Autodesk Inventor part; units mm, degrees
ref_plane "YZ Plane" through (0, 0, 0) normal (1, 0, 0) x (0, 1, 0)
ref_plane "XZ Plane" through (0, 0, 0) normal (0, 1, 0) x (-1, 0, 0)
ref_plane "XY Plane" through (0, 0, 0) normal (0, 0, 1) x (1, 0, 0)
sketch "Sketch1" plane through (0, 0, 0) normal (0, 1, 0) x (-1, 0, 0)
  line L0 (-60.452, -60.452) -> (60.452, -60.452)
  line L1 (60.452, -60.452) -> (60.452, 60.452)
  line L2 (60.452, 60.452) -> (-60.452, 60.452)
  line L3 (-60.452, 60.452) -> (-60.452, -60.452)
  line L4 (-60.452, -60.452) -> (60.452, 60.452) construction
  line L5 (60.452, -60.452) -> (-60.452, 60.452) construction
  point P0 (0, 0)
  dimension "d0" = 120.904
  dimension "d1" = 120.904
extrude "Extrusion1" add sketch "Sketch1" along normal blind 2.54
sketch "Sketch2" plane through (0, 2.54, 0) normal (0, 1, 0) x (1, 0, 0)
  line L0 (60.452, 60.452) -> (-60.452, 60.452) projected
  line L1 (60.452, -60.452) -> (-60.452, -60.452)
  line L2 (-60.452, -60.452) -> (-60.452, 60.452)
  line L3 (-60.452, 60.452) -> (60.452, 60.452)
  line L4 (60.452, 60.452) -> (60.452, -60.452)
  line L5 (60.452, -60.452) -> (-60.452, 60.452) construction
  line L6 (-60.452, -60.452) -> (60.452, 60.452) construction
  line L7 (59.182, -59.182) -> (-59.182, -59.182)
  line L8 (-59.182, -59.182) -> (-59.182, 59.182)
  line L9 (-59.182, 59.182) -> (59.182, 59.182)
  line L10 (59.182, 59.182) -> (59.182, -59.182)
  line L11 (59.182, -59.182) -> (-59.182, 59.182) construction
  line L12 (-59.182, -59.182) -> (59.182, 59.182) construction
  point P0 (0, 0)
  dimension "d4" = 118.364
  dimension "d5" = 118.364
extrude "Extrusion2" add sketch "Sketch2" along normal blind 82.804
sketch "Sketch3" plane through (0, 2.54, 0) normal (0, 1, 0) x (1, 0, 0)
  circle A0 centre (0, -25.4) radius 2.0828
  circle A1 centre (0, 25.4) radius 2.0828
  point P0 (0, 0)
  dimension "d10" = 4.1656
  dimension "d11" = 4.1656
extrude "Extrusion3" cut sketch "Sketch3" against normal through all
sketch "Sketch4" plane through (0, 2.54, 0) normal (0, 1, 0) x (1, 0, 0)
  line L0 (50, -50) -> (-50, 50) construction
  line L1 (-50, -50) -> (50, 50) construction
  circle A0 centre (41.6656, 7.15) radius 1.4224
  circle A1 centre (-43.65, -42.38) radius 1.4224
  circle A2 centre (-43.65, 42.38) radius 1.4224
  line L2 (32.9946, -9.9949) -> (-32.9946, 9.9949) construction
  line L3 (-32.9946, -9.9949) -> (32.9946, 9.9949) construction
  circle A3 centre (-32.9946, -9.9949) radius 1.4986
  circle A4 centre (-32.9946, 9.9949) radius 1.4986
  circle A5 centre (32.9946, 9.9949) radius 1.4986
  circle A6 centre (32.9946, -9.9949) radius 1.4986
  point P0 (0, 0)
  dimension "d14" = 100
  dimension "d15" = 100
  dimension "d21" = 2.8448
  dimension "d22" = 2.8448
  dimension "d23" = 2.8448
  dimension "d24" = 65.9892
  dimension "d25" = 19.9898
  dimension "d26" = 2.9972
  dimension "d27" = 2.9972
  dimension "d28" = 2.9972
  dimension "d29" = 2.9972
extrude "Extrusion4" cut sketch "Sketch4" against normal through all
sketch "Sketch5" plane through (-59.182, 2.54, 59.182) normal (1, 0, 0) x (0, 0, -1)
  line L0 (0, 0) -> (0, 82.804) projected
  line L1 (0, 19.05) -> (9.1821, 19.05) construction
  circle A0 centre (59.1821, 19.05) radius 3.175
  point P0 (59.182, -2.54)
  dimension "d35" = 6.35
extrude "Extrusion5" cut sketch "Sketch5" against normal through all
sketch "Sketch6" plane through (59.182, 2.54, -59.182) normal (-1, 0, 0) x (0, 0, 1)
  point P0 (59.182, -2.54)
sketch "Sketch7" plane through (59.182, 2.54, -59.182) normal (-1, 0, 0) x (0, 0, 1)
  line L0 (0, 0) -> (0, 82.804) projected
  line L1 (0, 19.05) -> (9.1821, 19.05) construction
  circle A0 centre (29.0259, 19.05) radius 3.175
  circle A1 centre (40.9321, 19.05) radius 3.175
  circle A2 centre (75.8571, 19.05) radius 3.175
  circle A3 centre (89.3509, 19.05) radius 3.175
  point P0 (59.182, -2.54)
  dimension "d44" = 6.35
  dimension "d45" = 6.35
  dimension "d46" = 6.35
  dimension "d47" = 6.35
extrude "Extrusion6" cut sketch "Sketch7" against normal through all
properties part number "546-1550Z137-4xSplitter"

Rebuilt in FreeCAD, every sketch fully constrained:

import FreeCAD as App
import Part
import Sketcher
from FreeCAD import Vector
Q = App.Units.Quantity


def add_polygon(sketch, points):
    """Adds a closed chain of lines whose ends are joined by coincident constraints."""
    first, n = sketch.GeometryCount, len(points)
    for a, b in zip(points, points[1:] + points[:1]):
        sketch.addGeometry(Part.LineSegment(App.Vector(*a, 0), App.Vector(*b, 0)), False)
    for i in range(n):
        sketch.addConstraint(Sketcher.Constraint("Coincident", first + i, 2, first + (i + 1) % n, 1))

doc = App.newDocument("Part")
body = doc.addObject("PartDesign::Body", "Body")

# Sketch on XZ plane
sketch1 = body.newObject("Sketcher::SketchObject", "Sketch")
sketch1.AttachmentSupport = (doc.getObject("XZ_Plane"), [""])
sketch1.MapMode = "FlatFace"
add_polygon(sketch1, [(60, 60), (60, -60), (-60, -60), (-60, 60)])  # lines 0-3
sketch1.addConstraint([
    Sketcher.Constraint("Vertical", 0),
    Sketcher.Constraint("Horizontal", 1),
    Sketcher.Constraint("Vertical", 2),
    Sketcher.Constraint("Horizontal", 3),
    Sketcher.Constraint("Symmetric", 0, 2, 2, 2, -1, 1),
    Sketcher.Constraint("Equal", 3, 0),
    Sketcher.Constraint("DistanceX", 1, 2, 1, 1, Q("4.76 in")),
])
pad1 = body.newObject("PartDesign::Pad", "Pad")
pad1.Profile = sketch1
pad1.Length = Q("0.1 in")
pad1.Reversed = True

# Sketch on XZ plane
sketch2 = body.newObject("Sketcher::SketchObject", "Sketch001")
sketch2.AttachmentSupport = (doc.getObject("XZ_Plane"), [""])
sketch2.MapMode = "FlatFace"
sketch2.AttachmentOffset = App.Placement(Vector(0, 0, -0.1 * 25.4), App.Rotation())
add_polygon(sketch2, [(60, 60), (60, -60), (-60, -60), (-60, 60)])  # lines 0-3
add_polygon(sketch2, [(59, -59), (59, 59), (-59, 59), (-59, -59)])  # lines 4-7
sketch2.addConstraint([
    Sketcher.Constraint("Vertical", 0),
    Sketcher.Constraint("Horizontal", 1),
    Sketcher.Constraint("Vertical", 2),
    Sketcher.Constraint("Horizontal", 3),
    Sketcher.Constraint("Vertical", 4),
    Sketcher.Constraint("Horizontal", 5),
    Sketcher.Constraint("Vertical", 6),
    Sketcher.Constraint("Horizontal", 7),
    Sketcher.Constraint("Symmetric", 0, 2, 2, 2, -1, 1),
    Sketcher.Constraint("Symmetric", 4, 2, 6, 2, -1, 1),
    Sketcher.Constraint("Equal", 3, 0),
    Sketcher.Constraint("Equal", 7, 4),
    Sketcher.Constraint("DistanceX", 5, 2, 5, 1, Q("4.66 in")),
    Sketcher.Constraint("DistanceX", 1, 2, 1, 1, Q("4.76 in")),
])
pad2 = body.newObject("PartDesign::Pad", "Pad001")
pad2.Profile = sketch2
pad2.Length = Q("3.26 in")
pad2.Reversed = True

# Sketch on XZ plane
sketch3 = body.newObject("Sketcher::SketchObject", "Sketch002")
sketch3.AttachmentSupport = (doc.getObject("XZ_Plane"), [""])
sketch3.MapMode = "FlatFace"
sketch3.AttachmentOffset = App.Placement(Vector(0, 0, -0.1 * 25.4), App.Rotation())
sketch3.addGeometry([
    Part.Circle(Vector(0, 25.4, 0), Vector(0, 0, 1), 2.1),
    Part.Circle(Vector(0, -25.4, 0), Vector(0, 0, 1), 2.1),
], False)
sketch3.addConstraint([
    Sketcher.Constraint("Equal", 0, 1),
    Sketcher.Constraint("Symmetric", 0, 3, 1, 3, -1, 1),
    Sketcher.Constraint("PointOnObject", 0, 3, -2),
    Sketcher.Constraint("Diameter", 0, Q("0.164 in")),
    Sketcher.Constraint("DistanceY", -1, 1, 0, 3, Q("1 in")),
])
pocket1 = body.newObject("PartDesign::Pocket", "Pocket")
pocket1.Profile = sketch3
pocket1.Type = "ThroughAll"
pocket1.Reversed = True

# Sketch on XZ plane
sketch4 = body.newObject("Sketcher::SketchObject", "Sketch003")
sketch4.AttachmentSupport = (doc.getObject("XZ_Plane"), [""])
sketch4.MapMode = "FlatFace"
sketch4.AttachmentOffset = App.Placement(Vector(0, 0, -0.1 * 25.4), App.Rotation())
sketch4.addGeometry([
    Part.Circle(Vector(41.7, -7.2, 0), Vector(0, 0, 1), 1.4),  # 0
    Part.Circle(Vector(-43.6, 42.4, 0), Vector(0, 0, 1), 1.4),  # 1
    Part.Circle(Vector(-43.6, -42.4, 0), Vector(0, 0, 1), 1.4),  # 2
    Part.Circle(Vector(-33, 10, 0), Vector(0, 0, 1), 1.5),  # 3
    Part.Circle(Vector(-33, -10, 0), Vector(0, 0, 1), 1.5),  # 4
    Part.Circle(Vector(33, -10, 0), Vector(0, 0, 1), 1.5),  # 5
    Part.Circle(Vector(33, 10, 0), Vector(0, 0, 1), 1.5),  # 6
], False)
sketch4.addConstraint([
    Sketcher.Constraint("Equal", 0, 1),
    Sketcher.Constraint("Equal", 1, 2),
    Sketcher.Constraint("Equal", 3, 4),
    Sketcher.Constraint("Equal", 4, 5),
    Sketcher.Constraint("Equal", 5, 6),
    Sketcher.Constraint("Symmetric", 3, 3, 5, 3, -1, 1),
    Sketcher.Constraint("Symmetric", 4, 3, 6, 3, -1, 1),
    Sketcher.Constraint("Symmetric", 4, 3, 5, 3, -2),
    Sketcher.Constraint("Symmetric", 1, 3, 2, 3, -1),
    Sketcher.Constraint("Diameter", 0, Q("0.112 in")),
    Sketcher.Constraint("Diameter", 3, Q("0.118 in")),
    Sketcher.Constraint("DistanceY", 4, 3, 3, 3, Q("0.787 in")),
    Sketcher.Constraint("DistanceY", 4, 3, 0, 3, Q("0.112 in")),
    Sketcher.Constraint("DistanceX", 4, 3, 5, 3, Q("2.598 in")),
    Sketcher.Constraint("DistanceY", 0, 3, 1, 3, Q("1.95 in")),
    Sketcher.Constraint("DistanceX", 1, 3, -1, 1, Q("1.7185 in")),
    Sketcher.Constraint("DistanceX", -1, 1, 0, 3, Q("41.6656 mm")),
])
pocket2 = body.newObject("PartDesign::Pocket", "Pocket001")
pocket2.Profile = sketch4
pocket2.Type = "ThroughAll"
pocket2.Reversed = True

# Sketch on YZ plane
sketch5 = body.newObject("Sketcher::SketchObject", "Sketch004")
sketch5.AttachmentSupport = (doc.getObject("YZ_Plane"), [""])
sketch5.MapMode = "FlatFace"
sketch5.AttachmentOffset = App.Placement(Vector(0, 0, -2.33 * 25.4), App.Rotation())
sketch5.addGeometry(Part.Circle(Vector(21.6, 0, 0), Vector(0, 0, 1), 3.2), False)
sketch5.addConstraint([
    Sketcher.Constraint("PointOnObject", 0, 3, -1),
    Sketcher.Constraint("Diameter", 0, Q("0.25 in")),
    Sketcher.Constraint("DistanceX", -1, 1, 0, 3, Q("0.85 in")),
])
pocket3 = body.newObject("PartDesign::Pocket", "Pocket002")
pocket3.Profile = sketch5
pocket3.Type = "ThroughAll"

# Sketch on YZ plane
sketch6 = body.newObject("Sketcher::SketchObject", "Sketch005")
sketch6.AttachmentSupport = (doc.getObject("YZ_Plane"), [""])
sketch6.MapMode = "FlatFace"
sketch6.AttachmentOffset = App.Placement(Vector(0, 0, 2.33 * 25.4), App.Rotation())
sketch6.addGeometry([
    Part.Circle(Vector(21.6, -30.2, 0), Vector(0, 0, 1), 3.2),
    Part.Circle(Vector(21.6, -18.2, 0), Vector(0, 0, 1), 3.2),
    Part.Circle(Vector(21.6, 16.7, 0), Vector(0, 0, 1), 3.2),
    Part.Circle(Vector(21.6, 30.2, 0), Vector(0, 0, 1), 3.2),
], False)
sketch6.addConstraint([
    Sketcher.Constraint("Equal", 0, 1),
    Sketcher.Constraint("Equal", 1, 2),
    Sketcher.Constraint("Equal", 2, 3),
    Sketcher.Constraint("Vertical", 0, 3, 1, 3),
    Sketcher.Constraint("Vertical", 1, 3, 2, 3),
    Sketcher.Constraint("Vertical", 2, 3, 3, 3),
    Sketcher.Constraint("Diameter", 0, Q("0.25 in")),
    Sketcher.Constraint("DistanceX", -1, 1, 0, 3, Q("0.85 in")),
    Sketcher.Constraint("DistanceY", 0, 3, 1, 3, Q("0.468748 in")),
    Sketcher.Constraint("DistanceY", 1, 3, 2, 3, Q("1.375 in")),
    Sketcher.Constraint("DistanceY", 2, 3, 3, 3, Q("0.531252 in")),
    Sketcher.Constraint("DistanceY", 1, 3, -1, 1, Q("0.7185 in")),
])
pocket4 = body.newObject("PartDesign::Pocket", "Pocket003")
pocket4.Profile = sketch6
pocket4.Type = "ThroughAll"
pocket4.Reversed = True

doc.recompute()
